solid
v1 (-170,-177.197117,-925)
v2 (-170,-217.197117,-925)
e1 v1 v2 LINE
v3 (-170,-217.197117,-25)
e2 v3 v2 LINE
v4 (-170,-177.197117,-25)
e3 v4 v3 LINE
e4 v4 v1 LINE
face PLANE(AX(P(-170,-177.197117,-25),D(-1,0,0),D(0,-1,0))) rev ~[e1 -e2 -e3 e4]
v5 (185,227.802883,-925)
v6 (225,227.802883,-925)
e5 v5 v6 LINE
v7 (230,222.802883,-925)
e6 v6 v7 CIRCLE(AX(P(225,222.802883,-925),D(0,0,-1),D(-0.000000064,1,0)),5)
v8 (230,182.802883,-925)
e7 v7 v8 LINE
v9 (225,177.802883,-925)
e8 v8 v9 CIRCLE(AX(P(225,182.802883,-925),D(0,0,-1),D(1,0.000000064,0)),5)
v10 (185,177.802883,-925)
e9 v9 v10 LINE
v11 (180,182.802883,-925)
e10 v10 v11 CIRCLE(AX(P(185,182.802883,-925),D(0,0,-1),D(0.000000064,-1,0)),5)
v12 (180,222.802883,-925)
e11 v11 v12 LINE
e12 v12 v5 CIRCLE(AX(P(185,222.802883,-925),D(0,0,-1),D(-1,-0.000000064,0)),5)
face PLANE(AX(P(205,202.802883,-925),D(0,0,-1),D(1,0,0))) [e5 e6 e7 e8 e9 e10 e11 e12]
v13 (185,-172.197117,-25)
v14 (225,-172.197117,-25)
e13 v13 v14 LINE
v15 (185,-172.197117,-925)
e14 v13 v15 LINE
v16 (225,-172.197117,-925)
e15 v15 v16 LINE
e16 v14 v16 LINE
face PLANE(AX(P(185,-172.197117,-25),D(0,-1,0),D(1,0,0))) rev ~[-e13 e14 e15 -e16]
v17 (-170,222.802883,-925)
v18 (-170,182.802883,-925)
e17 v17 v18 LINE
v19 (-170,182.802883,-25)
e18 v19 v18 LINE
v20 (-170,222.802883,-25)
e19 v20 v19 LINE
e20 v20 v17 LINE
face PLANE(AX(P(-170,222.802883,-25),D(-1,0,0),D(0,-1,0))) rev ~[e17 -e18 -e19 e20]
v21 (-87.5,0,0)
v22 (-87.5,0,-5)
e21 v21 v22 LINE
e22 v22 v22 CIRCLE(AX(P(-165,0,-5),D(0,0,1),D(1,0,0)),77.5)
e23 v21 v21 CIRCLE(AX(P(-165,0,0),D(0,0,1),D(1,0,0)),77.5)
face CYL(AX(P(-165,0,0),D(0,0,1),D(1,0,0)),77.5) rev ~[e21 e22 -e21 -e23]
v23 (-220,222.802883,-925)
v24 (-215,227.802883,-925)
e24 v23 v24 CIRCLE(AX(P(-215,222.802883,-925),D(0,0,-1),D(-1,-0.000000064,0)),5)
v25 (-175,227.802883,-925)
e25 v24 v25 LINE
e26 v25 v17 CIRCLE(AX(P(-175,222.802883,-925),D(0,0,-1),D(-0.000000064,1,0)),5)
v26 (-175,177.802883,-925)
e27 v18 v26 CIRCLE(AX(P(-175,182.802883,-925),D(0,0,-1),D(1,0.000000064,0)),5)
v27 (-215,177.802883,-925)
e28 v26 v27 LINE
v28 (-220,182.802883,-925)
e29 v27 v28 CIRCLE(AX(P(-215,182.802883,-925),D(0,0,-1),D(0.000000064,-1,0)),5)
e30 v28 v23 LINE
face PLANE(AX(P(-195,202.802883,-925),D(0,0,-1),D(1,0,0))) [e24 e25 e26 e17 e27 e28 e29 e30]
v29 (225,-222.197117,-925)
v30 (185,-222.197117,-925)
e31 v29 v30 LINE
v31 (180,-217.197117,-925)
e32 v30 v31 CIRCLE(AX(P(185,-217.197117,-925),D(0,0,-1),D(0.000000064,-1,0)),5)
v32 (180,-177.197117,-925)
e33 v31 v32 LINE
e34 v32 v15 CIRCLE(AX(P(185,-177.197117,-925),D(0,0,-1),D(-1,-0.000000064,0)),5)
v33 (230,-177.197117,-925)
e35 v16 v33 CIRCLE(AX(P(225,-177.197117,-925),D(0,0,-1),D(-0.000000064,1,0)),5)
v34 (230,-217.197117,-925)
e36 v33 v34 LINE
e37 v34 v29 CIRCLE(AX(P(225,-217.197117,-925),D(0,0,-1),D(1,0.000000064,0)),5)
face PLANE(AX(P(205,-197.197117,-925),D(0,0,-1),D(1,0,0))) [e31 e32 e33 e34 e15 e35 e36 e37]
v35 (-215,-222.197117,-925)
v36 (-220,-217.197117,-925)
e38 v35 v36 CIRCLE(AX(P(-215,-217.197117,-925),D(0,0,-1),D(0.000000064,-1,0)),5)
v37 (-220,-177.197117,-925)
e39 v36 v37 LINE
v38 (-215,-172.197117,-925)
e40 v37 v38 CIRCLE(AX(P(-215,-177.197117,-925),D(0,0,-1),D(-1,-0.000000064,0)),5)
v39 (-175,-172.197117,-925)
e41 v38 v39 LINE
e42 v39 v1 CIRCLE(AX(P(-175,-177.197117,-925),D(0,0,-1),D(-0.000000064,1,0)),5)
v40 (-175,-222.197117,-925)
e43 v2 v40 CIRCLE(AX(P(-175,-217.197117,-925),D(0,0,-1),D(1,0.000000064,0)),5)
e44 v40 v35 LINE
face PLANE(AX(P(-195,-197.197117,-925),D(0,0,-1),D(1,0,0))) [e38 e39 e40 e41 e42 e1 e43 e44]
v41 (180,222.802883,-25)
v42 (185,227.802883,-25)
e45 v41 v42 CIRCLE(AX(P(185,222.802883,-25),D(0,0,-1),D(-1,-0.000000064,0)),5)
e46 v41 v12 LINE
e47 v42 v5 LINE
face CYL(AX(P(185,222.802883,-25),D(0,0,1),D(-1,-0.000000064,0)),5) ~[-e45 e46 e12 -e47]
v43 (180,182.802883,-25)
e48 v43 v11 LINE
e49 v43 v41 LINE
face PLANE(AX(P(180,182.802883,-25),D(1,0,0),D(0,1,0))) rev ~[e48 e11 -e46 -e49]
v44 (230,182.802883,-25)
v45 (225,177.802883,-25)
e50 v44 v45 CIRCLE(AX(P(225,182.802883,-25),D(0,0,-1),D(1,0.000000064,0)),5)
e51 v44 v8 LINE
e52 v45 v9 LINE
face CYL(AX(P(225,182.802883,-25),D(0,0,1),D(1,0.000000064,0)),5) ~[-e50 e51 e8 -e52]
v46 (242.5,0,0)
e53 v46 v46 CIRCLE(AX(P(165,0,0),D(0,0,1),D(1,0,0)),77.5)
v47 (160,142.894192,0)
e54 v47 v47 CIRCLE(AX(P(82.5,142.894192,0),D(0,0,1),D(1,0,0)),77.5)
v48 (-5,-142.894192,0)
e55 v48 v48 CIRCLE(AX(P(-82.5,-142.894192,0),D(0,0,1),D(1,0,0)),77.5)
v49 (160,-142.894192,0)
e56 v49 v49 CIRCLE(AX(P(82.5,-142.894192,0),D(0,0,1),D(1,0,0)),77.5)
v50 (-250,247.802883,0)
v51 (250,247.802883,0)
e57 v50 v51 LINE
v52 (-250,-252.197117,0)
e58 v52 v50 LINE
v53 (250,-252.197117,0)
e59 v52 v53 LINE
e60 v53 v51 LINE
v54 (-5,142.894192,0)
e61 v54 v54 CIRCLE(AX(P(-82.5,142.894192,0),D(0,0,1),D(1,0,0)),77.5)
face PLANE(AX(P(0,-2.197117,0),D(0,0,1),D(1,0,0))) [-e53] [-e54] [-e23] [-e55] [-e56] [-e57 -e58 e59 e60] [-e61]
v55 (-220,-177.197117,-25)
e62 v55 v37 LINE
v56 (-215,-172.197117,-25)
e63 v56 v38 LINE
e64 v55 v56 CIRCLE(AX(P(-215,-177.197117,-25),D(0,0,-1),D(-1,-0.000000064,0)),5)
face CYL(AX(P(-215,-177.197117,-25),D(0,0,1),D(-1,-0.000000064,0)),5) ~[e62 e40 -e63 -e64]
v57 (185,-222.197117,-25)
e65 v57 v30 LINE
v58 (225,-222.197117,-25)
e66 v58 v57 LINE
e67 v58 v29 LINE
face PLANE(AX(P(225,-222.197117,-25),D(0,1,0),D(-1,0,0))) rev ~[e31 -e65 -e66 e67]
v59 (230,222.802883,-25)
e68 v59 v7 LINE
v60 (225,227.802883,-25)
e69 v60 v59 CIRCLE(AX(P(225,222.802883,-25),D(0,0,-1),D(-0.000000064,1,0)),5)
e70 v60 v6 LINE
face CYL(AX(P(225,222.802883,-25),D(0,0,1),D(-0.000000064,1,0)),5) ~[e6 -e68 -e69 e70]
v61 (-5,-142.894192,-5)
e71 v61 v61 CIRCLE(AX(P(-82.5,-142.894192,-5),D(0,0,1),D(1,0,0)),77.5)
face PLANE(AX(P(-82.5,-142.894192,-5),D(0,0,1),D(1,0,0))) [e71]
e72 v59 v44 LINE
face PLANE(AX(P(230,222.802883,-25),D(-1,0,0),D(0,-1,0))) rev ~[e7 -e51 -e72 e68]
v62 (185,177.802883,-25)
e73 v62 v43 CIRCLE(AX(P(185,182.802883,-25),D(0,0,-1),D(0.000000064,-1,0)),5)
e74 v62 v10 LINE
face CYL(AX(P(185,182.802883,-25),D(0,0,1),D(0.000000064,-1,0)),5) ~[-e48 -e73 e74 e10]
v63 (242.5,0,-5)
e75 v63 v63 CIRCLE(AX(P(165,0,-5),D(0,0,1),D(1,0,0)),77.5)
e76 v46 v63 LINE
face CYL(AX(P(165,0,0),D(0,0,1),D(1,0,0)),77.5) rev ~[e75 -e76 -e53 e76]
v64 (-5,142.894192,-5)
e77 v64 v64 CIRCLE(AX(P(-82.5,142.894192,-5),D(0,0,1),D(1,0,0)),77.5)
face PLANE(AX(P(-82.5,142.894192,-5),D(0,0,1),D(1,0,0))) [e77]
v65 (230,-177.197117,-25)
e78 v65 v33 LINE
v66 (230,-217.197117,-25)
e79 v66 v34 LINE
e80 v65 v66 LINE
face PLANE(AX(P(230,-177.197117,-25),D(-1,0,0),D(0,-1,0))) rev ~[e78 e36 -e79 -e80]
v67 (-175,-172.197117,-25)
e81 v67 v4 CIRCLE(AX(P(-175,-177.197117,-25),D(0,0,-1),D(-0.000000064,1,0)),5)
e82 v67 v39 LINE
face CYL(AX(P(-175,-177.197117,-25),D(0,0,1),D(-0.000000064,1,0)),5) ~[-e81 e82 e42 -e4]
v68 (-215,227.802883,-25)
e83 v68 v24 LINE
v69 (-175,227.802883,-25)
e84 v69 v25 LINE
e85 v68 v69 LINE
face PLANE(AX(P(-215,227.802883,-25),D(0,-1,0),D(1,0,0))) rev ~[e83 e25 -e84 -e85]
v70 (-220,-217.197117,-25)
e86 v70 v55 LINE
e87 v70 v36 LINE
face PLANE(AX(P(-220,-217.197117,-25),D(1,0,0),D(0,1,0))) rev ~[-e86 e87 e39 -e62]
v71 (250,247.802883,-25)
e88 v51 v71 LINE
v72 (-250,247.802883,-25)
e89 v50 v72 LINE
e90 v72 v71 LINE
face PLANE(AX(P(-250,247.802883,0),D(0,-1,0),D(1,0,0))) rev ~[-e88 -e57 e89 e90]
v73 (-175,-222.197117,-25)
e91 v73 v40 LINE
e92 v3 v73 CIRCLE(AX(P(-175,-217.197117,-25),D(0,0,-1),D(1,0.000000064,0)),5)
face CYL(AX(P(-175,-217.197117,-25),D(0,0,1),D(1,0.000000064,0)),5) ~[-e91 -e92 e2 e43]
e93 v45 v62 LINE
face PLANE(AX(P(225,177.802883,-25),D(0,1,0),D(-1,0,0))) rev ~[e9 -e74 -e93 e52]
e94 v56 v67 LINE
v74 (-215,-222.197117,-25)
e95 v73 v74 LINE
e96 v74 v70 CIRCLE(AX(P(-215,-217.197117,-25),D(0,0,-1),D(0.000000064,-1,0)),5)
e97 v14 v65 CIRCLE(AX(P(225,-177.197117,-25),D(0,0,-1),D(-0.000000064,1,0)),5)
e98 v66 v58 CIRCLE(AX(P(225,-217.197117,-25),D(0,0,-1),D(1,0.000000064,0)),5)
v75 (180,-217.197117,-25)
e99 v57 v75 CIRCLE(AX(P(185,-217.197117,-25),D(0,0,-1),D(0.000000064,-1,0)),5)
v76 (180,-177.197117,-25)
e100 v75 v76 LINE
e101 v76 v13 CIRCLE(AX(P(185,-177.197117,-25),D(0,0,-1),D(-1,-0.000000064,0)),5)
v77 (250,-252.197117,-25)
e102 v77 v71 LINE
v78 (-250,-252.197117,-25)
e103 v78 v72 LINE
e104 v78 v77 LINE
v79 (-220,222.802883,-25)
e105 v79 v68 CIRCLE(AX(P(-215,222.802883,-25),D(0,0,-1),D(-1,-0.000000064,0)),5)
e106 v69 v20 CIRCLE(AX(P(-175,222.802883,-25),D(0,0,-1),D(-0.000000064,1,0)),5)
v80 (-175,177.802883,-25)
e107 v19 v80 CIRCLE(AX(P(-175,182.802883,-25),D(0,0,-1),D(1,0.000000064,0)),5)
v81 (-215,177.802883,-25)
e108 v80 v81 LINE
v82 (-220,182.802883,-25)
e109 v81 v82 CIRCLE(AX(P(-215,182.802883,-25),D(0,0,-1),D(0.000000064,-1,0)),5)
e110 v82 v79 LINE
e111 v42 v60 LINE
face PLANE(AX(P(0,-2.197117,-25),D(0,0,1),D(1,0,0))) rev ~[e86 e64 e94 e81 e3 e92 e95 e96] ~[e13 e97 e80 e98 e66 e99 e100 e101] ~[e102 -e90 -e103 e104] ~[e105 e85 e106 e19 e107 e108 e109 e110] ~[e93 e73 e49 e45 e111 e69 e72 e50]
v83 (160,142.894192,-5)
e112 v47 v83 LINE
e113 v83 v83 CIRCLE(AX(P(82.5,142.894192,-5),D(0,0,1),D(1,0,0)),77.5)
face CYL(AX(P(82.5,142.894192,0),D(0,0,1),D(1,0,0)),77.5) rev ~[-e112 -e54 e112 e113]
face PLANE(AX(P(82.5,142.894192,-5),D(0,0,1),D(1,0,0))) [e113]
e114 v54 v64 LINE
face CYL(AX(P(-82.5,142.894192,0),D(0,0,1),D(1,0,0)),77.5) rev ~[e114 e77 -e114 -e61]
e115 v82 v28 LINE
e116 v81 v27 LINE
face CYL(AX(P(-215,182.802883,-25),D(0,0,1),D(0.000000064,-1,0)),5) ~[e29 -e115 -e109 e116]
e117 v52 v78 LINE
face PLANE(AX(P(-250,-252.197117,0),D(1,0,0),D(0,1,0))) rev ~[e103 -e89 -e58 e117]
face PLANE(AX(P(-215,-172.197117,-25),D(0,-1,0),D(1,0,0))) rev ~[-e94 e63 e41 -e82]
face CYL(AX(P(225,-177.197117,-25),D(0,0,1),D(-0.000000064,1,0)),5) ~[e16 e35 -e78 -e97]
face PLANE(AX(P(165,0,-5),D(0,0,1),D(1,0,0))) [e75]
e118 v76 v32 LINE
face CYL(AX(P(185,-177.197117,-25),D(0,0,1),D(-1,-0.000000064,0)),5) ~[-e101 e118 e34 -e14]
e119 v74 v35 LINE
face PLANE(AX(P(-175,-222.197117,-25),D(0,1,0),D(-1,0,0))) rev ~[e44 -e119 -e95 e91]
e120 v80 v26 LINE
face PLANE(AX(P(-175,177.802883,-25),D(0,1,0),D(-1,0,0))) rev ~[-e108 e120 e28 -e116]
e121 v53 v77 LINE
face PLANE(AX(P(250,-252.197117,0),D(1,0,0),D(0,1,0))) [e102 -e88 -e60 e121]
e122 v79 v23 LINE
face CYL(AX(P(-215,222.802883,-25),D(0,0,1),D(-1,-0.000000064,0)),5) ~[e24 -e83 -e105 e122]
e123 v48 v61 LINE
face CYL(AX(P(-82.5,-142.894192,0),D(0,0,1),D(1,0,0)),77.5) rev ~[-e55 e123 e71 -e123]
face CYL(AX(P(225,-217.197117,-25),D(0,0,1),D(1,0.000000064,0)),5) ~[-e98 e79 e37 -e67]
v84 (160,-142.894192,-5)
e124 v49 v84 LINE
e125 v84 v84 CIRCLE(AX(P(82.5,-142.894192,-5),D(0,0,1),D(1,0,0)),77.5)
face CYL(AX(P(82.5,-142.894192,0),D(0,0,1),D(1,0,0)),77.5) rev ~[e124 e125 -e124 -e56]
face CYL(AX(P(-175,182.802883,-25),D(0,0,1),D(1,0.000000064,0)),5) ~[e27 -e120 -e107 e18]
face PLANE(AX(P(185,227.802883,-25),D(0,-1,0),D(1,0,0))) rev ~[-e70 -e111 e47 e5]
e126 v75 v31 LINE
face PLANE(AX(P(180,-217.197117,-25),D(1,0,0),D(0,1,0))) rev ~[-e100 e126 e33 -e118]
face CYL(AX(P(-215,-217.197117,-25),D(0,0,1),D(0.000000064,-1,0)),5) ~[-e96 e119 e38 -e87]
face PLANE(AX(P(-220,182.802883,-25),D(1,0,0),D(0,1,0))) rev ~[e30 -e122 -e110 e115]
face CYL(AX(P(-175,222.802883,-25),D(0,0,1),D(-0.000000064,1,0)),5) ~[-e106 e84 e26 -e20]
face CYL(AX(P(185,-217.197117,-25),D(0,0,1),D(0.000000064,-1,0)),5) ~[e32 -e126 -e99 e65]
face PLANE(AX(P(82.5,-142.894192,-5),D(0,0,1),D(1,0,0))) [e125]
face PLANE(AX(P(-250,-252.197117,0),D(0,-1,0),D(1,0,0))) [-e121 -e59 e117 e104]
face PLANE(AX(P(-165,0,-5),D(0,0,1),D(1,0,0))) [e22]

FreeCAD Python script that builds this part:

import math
import FreeCAD as App
import Part
import Sketcher
from FreeCAD import Vector
Q = App.Units.Quantity


def add_polygon(sketch, points):
    """Adds a closed chain of lines whose ends are joined by coincident constraints."""
    first, n = sketch.GeometryCount, len(points)
    for a, b in zip(points, points[1:] + points[:1]):
        sketch.addGeometry(Part.LineSegment(App.Vector(*a, 0), App.Vector(*b, 0)), False)
    for i in range(n):
        sketch.addConstraint(Sketcher.Constraint("Coincident", first + i, 2, first + (i + 1) % n, 1))

doc = App.newDocument("Part")
body = doc.addObject("PartDesign::Body", "Body")

# Sketch on XY plane
sketch1 = body.newObject("Sketcher::SketchObject", "Sketch")
sketch1.AttachmentSupport = (doc.getObject("XY_Plane"), [""])
sketch1.MapMode = "FlatFace"
add_polygon(sketch1, [(-250, 248), (-250, -252), (250, -252), (250, 248)])  # lines 0-3
sketch1.addConstraint([
    Sketcher.Constraint("Vertical", 0),
    Sketcher.Constraint("Horizontal", 1),
    Sketcher.Constraint("Vertical", 2),
    Sketcher.Constraint("Horizontal", 3),
    Sketcher.Constraint("Equal", 3, 0),
    Sketcher.Constraint("DistanceX", 1, 1, 1, 2, Q("500 mm")),
    Sketcher.Constraint("DistanceX", 0, 2, -1, 1, Q("250 mm")),
    Sketcher.Constraint("DistanceY", 0, 2, -1, 1, Q("252.197117 mm")),
])
pad1 = body.newObject("PartDesign::Pad", "Pad")
pad1.Profile = sketch1
pad1.Length = 25
pad1.Reversed = True

# Sketch on XY plane
sketch2 = body.newObject("Sketcher::SketchObject", "Sketch001")
sketch2.AttachmentSupport = (doc.getObject("XY_Plane"), [""])
sketch2.MapMode = "FlatFace"
sketch2.addGeometry([
    Part.Circle(Vector(-82, 143, 0), Vector(0, 0, 1), 78),  # 0
    Part.Circle(Vector(82, 143, 0), Vector(0, 0, 1), 78),  # 1
    Part.Circle(Vector(165, 0, 0), Vector(0, 0, 1), 78),  # 2
    Part.Circle(Vector(82, -143, 0), Vector(0, 0, 1), 78),  # 3
    Part.Circle(Vector(-82, -143, 0), Vector(0, 0, 1), 78),  # 4
    Part.Circle(Vector(-165, 0, 0), Vector(0, 0, 1), 78),  # 5
], False)
sketch2.addConstraint([
    Sketcher.Constraint("Equal", 0, 1),
    Sketcher.Constraint("Equal", 1, 2),
    Sketcher.Constraint("Equal", 2, 3),
    Sketcher.Constraint("Equal", 3, 4),
    Sketcher.Constraint("Equal", 4, 5),
    Sketcher.Constraint("Symmetric", 0, 3, 3, 3, -1, 1),
    Sketcher.Constraint("Symmetric", 1, 3, 4, 3, -1, 1),
    Sketcher.Constraint("Symmetric", 2, 3, 5, 3, -1, 1),
    Sketcher.Constraint("Symmetric", 0, 3, 1, 3, -2),
    Sketcher.Constraint("PointOnObject", 2, 3, -1),
    Sketcher.Constraint("Diameter", 0, Q("155 mm")),
    Sketcher.Constraint("DistanceX", -1, 1, 2, 3, Q("165 mm")),
    Sketcher.Constraint("DistanceX", 0, 3, 1, 3, Q("165 mm")),
    Sketcher.Constraint("DistanceY", -1, 1, 0, 3, Q("142.894192 mm")),
])
pocket1 = body.newObject("PartDesign::Pocket", "Pocket")
pocket1.Profile = sketch2
pocket1.Length = 5

# Sketch on XY plane
sketch3 = body.newObject("Sketcher::SketchObject", "Sketch002")
sketch3.AttachmentSupport = (doc.getObject("XY_Plane"), [""])
sketch3.MapMode = "FlatFace"
sketch3.AttachmentOffset = App.Placement(Vector(0, 0, -25), App.Rotation())
sketch3.addGeometry([
    Part.ArcOfCircle(Part.Circle(Vector(225, -177.2, 0), Vector(0, 0, 1), 5), math.radians(0), math.radians(90)),  # 0
    Part.LineSegment(Vector(230, -177.2, 0), Vector(230, -217.2, 0)),  # 1
    Part.ArcOfCircle(Part.Circle(Vector(225, -217.2, 0), Vector(0, 0, 1), 5), math.radians(-90), math.radians(0)),  # 2
    Part.LineSegment(Vector(225, -222.2, 0), Vector(185, -222.2, 0)),  # 3
    Part.ArcOfCircle(Part.Circle(Vector(185, -217.2, 0), Vector(0, 0, 1), 5), math.radians(180), math.radians(270)),  # 4
    Part.LineSegment(Vector(180, -217.2, 0), Vector(180, -177.2, 0)),  # 5
    Part.ArcOfCircle(Part.Circle(Vector(185, -177.2, 0), Vector(0, 0, 1), 5), math.radians(90), math.radians(180)),  # 6
    Part.LineSegment(Vector(185, -172.2, 0), Vector(225, -172.2, 0)),  # 7
    Part.ArcOfCircle(Part.Circle(Vector(-175, -177.2, 0), Vector(0, 0, 1), 5), math.radians(0), math.radians(90)),  # 8
    Part.LineSegment(Vector(-170, -177.2, 0), Vector(-170, -217.2, 0)),  # 9
    Part.ArcOfCircle(Part.Circle(Vector(-175, -217.2, 0), Vector(0, 0, 1), 5), math.radians(-90), math.radians(0)),  # 10
    Part.LineSegment(Vector(-175, -222.2, 0), Vector(-215, -222.2, 0)),  # 11
    Part.ArcOfCircle(Part.Circle(Vector(-215, -217.2, 0), Vector(0, 0, 1), 5), math.radians(180), math.radians(270)),  # 12
    Part.LineSegment(Vector(-220, -217.2, 0), Vector(-220, -177.2, 0)),  # 13
    Part.ArcOfCircle(Part.Circle(Vector(-215, -177.2, 0), Vector(0, 0, 1), 5), math.radians(90), math.radians(180)),  # 14
    Part.LineSegment(Vector(-215, -172.2, 0), Vector(-175, -172.2, 0)),  # 15
    Part.ArcOfCircle(Part.Circle(Vector(-175, 222.8, 0), Vector(0, 0, 1), 5), math.radians(0), math.radians(90)),  # 16
    Part.LineSegment(Vector(-170, 222.8, 0), Vector(-170, 182.8, 0)),  # 17
    Part.ArcOfCircle(Part.Circle(Vector(-175, 182.8, 0), Vector(0, 0, 1), 5), math.radians(-90), math.radians(0)),  # 18
    Part.LineSegment(Vector(-175, 177.8, 0), Vector(-215, 177.8, 0)),  # 19
    Part.ArcOfCircle(Part.Circle(Vector(-215, 182.8, 0), Vector(0, 0, 1), 5), math.radians(180), math.radians(270)),  # 20
    Part.LineSegment(Vector(-220, 182.8, 0), Vector(-220, 222.8, 0)),  # 21
    Part.ArcOfCircle(Part.Circle(Vector(-215, 222.8, 0), Vector(0, 0, 1), 5), math.radians(90), math.radians(180)),  # 22
    Part.LineSegment(Vector(-215, 227.8, 0), Vector(-175, 227.8, 0)),  # 23
    Part.LineSegment(Vector(185, 227.8, 0), Vector(225, 227.8, 0)),  # 24
    Part.ArcOfCircle(Part.Circle(Vector(225, 222.8, 0), Vector(0, 0, 1), 5), math.radians(0), math.radians(90)),  # 25
    Part.LineSegment(Vector(230, 222.8, 0), Vector(230, 182.8, 0)),  # 26
    Part.ArcOfCircle(Part.Circle(Vector(225, 182.8, 0), Vector(0, 0, 1), 5), math.radians(-90), math.radians(0)),  # 27
    Part.LineSegment(Vector(225, 177.8, 0), Vector(185, 177.8, 0)),  # 28
    Part.ArcOfCircle(Part.Circle(Vector(185, 182.8, 0), Vector(0, 0, 1), 5), math.radians(180), math.radians(270)),  # 29
    Part.LineSegment(Vector(180, 182.8, 0), Vector(180, 222.8, 0)),  # 30
    Part.ArcOfCircle(Part.Circle(Vector(185, 222.8, 0), Vector(0, 0, 1), 5), math.radians(90), math.radians(180)),  # 31
], False)
sketch3.addConstraint([
    Sketcher.Constraint("Tangent", 0, 1, 1, 1),
    Sketcher.Constraint("Tangent", 1, 2, 2, 2),
    Sketcher.Constraint("Tangent", 2, 1, 3, 1),
    Sketcher.Constraint("Tangent", 3, 2, 4, 2),
    Sketcher.Constraint("Tangent", 4, 1, 5, 1),
    Sketcher.Constraint("Tangent", 5, 2, 6, 2),
    Sketcher.Constraint("Tangent", 6, 1, 7, 1),
    Sketcher.Constraint("Tangent", 7, 2, 0, 2),
    Sketcher.Constraint("Tangent", 8, 1, 9, 1),
    Sketcher.Constraint("Tangent", 9, 2, 10, 2),
    Sketcher.Constraint("Tangent", 10, 1, 11, 1),
    Sketcher.Constraint("Tangent", 11, 2, 12, 2),
    Sketcher.Constraint("Tangent", 12, 1, 13, 1),
    Sketcher.Constraint("Tangent", 13, 2, 14, 2),
    Sketcher.Constraint("Tangent", 14, 1, 15, 1),
    Sketcher.Constraint("Tangent", 15, 2, 8, 2),
    Sketcher.Constraint("Tangent", 16, 1, 17, 1),
    Sketcher.Constraint("Tangent", 17, 2, 18, 2),
    Sketcher.Constraint("Tangent", 18, 1, 19, 1),
    Sketcher.Constraint("Tangent", 19, 2, 20, 2),
    Sketcher.Constraint("Tangent", 20, 1, 21, 1),
    Sketcher.Constraint("Tangent", 21, 2, 22, 2),
    Sketcher.Constraint("Tangent", 22, 1, 23, 1),
    Sketcher.Constraint("Tangent", 23, 2, 16, 2),
    Sketcher.Constraint("Tangent", 24, 2, 25, 2),
    Sketcher.Constraint("Tangent", 25, 1, 26, 1),
    Sketcher.Constraint("Tangent", 26, 2, 27, 2),
    Sketcher.Constraint("Tangent", 27, 1, 28, 1),
    Sketcher.Constraint("Tangent", 28, 2, 29, 2),
    Sketcher.Constraint("Tangent", 29, 1, 30, 1),
    Sketcher.Constraint("Tangent", 30, 2, 31, 2),
    Sketcher.Constraint("Tangent", 31, 1, 24, 1),
    Sketcher.Constraint("Vertical", 1),
    Sketcher.Constraint("Horizontal", 3),
    Sketcher.Constraint("Vertical", 5),
    Sketcher.Constraint("Horizontal", 7),
    Sketcher.Constraint("Vertical", 9),
    Sketcher.Constraint("Horizontal", 11),
    Sketcher.Constraint("Vertical", 13),
    Sketcher.Constraint("Horizontal", 15),
    Sketcher.Constraint("Vertical", 17),
    Sketcher.Constraint("Horizontal", 19),
    Sketcher.Constraint("Vertical", 21),
    Sketcher.Constraint("Horizontal", 23),
    Sketcher.Constraint("Horizontal", 24),
    Sketcher.Constraint("Vertical", 26),
    Sketcher.Constraint("Horizontal", 28),
    Sketcher.Constraint("Vertical", 30),
    Sketcher.Constraint("Equal", 0, 2),
    Sketcher.Constraint("Equal", 2, 4),
    Sketcher.Constraint("Equal", 4, 6),
    Sketcher.Constraint("Equal", 6, 8),
    Sketcher.Constraint("Equal", 8, 10),
    Sketcher.Constraint("Equal", 10, 12),
    Sketcher.Constraint("Equal", 12, 14),
    Sketcher.Constraint("Equal", 14, 16),
    Sketcher.Constraint("Equal", 16, 18),
    Sketcher.Constraint("Equal", 18, 20),
    Sketcher.Constraint("Equal", 20, 22),
    Sketcher.Constraint("Equal", 22, 25),
    Sketcher.Constraint("Equal", 25, 27),
    Sketcher.Constraint("Equal", 27, 29),
    Sketcher.Constraint("Equal", 29, 31),
    Sketcher.Constraint("Horizontal", 6, 3, 8, 3),
    Sketcher.Constraint("Horizontal", 4, 3, 10, 3),
    Sketcher.Constraint("Horizontal", 22, 3, 25, 3),
    Sketcher.Constraint("Horizontal", 20, 3, 27, 3),
    Sketcher.Constraint("Vertical", 10, 3, 16, 3),
    Sketcher.Constraint("Vertical", 14, 3, 20, 3),
    Sketcher.Constraint("Vertical", 2, 3, 25, 3),
    Sketcher.Constraint("Vertical", 6, 3, 29, 3),
    Sketcher.Constraint("Equal", 7, 11),
    Sketcher.Constraint("Equal", 28, 1),
    Sketcher.Constraint("Equal", 13, 17),
    Sketcher.Constraint("Radius", 0, Q("5 mm")),
    Sketcher.Constraint("DistanceX", 3, 2, 3, 1, Q("40 mm")),
    Sketcher.Constraint("DistanceX", -1, 1, 0, 3, Q("225 mm")),
    Sketcher.Constraint("DistanceX", 8, 3, -1, 1, Q("175 mm")),
    Sketcher.Constraint("DistanceY", 8, 3, 16, 3, Q("400 mm")),
    Sketcher.Constraint("DistanceY", 0, 3, -1, 1, Q("177.197117 mm")),
])
pad2 = body.newObject("PartDesign::Pad", "Pad001")
pad2.Profile = sketch3
pad2.Length = 900
pad2.Reversed = True

doc.recompute()
